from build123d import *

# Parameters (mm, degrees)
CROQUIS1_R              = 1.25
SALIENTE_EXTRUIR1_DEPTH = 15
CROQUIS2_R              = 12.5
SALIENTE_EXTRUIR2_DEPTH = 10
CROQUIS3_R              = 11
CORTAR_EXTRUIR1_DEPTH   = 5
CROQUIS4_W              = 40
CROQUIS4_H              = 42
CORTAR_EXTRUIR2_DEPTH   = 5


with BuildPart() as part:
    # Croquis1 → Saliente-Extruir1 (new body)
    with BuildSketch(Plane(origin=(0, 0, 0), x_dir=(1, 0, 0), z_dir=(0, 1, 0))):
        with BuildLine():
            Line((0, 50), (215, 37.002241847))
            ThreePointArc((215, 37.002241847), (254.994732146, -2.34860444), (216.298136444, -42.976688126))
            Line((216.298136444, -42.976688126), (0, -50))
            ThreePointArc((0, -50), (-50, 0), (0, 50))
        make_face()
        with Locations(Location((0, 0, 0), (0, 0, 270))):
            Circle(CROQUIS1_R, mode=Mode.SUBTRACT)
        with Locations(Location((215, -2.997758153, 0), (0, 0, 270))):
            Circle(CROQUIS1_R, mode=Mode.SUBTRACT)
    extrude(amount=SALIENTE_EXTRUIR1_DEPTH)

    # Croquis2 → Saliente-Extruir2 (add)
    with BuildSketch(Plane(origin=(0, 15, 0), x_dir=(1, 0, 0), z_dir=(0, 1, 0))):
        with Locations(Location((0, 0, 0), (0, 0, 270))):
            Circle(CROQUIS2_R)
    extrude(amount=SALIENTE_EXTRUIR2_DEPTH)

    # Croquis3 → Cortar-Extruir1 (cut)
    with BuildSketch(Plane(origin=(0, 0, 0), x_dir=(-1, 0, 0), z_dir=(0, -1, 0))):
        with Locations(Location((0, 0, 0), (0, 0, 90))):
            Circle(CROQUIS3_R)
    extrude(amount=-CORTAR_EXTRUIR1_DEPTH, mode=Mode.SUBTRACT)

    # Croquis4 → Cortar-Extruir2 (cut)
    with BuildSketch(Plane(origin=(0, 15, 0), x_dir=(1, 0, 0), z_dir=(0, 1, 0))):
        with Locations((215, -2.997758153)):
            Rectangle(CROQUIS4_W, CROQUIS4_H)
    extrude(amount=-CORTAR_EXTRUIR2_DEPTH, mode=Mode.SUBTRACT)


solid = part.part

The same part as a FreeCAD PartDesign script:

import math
import FreeCAD as App
import Part
import Sketcher

V = App.Vector

doc = App.newDocument("Part")
body = doc.addObject("PartDesign::Body", "Body")

# Sketch on XZ plane
sketch1 = body.newObject("Sketcher::SketchObject", "Sketch")
sketch1.AttachmentSupport = (doc.getObject("XZ_Plane"), [""])
sketch1.MapMode = "FlatFace"
sketch1.addGeometry(Part.LineSegment(V(215, -37.002242, 0), V(0, -50, 0)), False)
sketch1.addGeometry(Part.ArcOfCircle(Part.Circle(V(0, 0, 0), V(0, 0, 1), 50), math.radians(90), math.radians(270)), False)
sketch1.addGeometry(Part.LineSegment(V(0, 50, 0), V(216.298136, 42.976688, 0)), False)
sketch1.addGeometry(Part.ArcOfCircle(Part.Circle(V(215, 2.997758, 0), V(0, 0, 1), 40), math.radians(-90), math.radians(88.14023)), False)
sketch1.addGeometry(Part.Circle(V(215, 2.997758, 0), V(0, 0, 1), 1.25), False)
sketch1.addGeometry(Part.Circle(V(0, 0, 0), V(0, 0, 1), 1.25), False)
sketch1.addConstraint(Sketcher.Constraint("Coincident", 0, 2, 1, 2))
sketch1.addConstraint(Sketcher.Constraint("Coincident", 1, 1, 2, 1))
sketch1.addConstraint(Sketcher.Constraint("Tangent", 2, 2, 3, 2))
sketch1.addConstraint(Sketcher.Constraint("Coincident", 3, 1, 0, 1))
sketch1.addConstraint(Sketcher.Constraint("Coincident", 1, 3, -1, 1))
sketch1.addConstraint(Sketcher.Constraint("Coincident", 5, 3, -1, 1))
sketch1.addConstraint(Sketcher.Constraint("Coincident", 4, 3, 3, 3))
sketch1.addConstraint(Sketcher.Constraint("Equal", 4, 5))
sketch1.addConstraint(Sketcher.Constraint("PointOnObject", 0, 2, -2))
sketch1.addConstraint(Sketcher.Constraint("PointOnObject", 1, 1, -2))
sketch1.addConstraint(Sketcher.Constraint("Vertical", 4, 3, 3, 1))
sketch1.addConstraint(Sketcher.Constraint("Radius", 1, 50.0))
sketch1.addConstraint(Sketcher.Constraint("Radius", 3, 40.0))
sketch1.addConstraint(Sketcher.Constraint("Diameter", 4, 2.5))
sketch1.addConstraint(Sketcher.Constraint("DistanceX", -1, 1, 3, 3, 215.0))
sketch1.addConstraint(Sketcher.Constraint("Distance", 0, 215.392529))
pad1 = body.newObject("PartDesign::Pad", "Pad")
pad1.Profile = sketch1
pad1.Length = 15
pad1.Reversed = True

# Sketch on XZ plane
sketch2 = body.newObject("Sketcher::SketchObject", "Sketch001")
sketch2.AttachmentSupport = (doc.getObject("XZ_Plane"), [""])
sketch2.MapMode = "FlatFace"
sketch2.AttachmentOffset = App.Placement(V(0, 0, -15), App.Rotation())
sketch2.addGeometry(Part.Circle(V(0, 0, 0), V(0, 0, 1), 12.5), False)
sketch2.addConstraint(Sketcher.Constraint("Coincident", 0, 3, -1, 1))
sketch2.addConstraint(Sketcher.Constraint("Diameter", 0, 25.0))
pad2 = body.newObject("PartDesign::Pad", "Pad001")
pad2.Profile = sketch2
pad2.Length = 10
pad2.Reversed = True

# Sketch on XZ plane
sketch3 = body.newObject("Sketcher::SketchObject", "Sketch002")
sketch3.AttachmentSupport = (doc.getObject("XZ_Plane"), [""])
sketch3.MapMode = "FlatFace"
sketch3.addGeometry(Part.Circle(V(0, 0, 0), V(0, 0, 1), 11), False)
sketch3.addConstraint(Sketcher.Constraint("Coincident", 0, 3, -1, 1))
sketch3.addConstraint(Sketcher.Constraint("Diameter", 0, 22.0))
pocket1 = body.newObject("PartDesign::Pocket", "Pocket")
pocket1.Profile = sketch3
pocket1.Length = 5

# Sketch on XZ plane
sketch4 = body.newObject("Sketcher::SketchObject", "Sketch003")
sketch4.AttachmentSupport = (doc.getObject("XZ_Plane"), [""])
sketch4.MapMode = "FlatFace"
sketch4.AttachmentOffset = App.Placement(V(0, 0, -15), App.Rotation())
sketch4.addGeometry(Part.LineSegment(V(195, -18.002242, 0), V(195, 23.997758, 0)), False)
sketch4.addGeometry(Part.LineSegment(V(195, 23.997758, 0), V(235, 23.997758, 0)), False)
sketch4.addGeometry(Part.LineSegment(V(235, 23.997758, 0), V(235, -18.002242, 0)), False)
sketch4.addGeometry(Part.LineSegment(V(235, -18.002242, 0), V(195, -18.002242, 0)), False)
sketch4.addConstraint(Sketcher.Constraint("Coincident", 0, 2, 1, 1))
sketch4.addConstraint(Sketcher.Constraint("Coincident", 1, 2, 2, 1))
sketch4.addConstraint(Sketcher.Constraint("Coincident", 2, 2, 3, 1))
sketch4.addConstraint(Sketcher.Constraint("Coincident", 3, 2, 0, 1))
sketch4.addConstraint(Sketcher.Constraint("Vertical", 0))
sketch4.addConstraint(Sketcher.Constraint("Horizontal", 1))
sketch4.addConstraint(Sketcher.Constraint("Vertical", 2))
sketch4.addConstraint(Sketcher.Constraint("Horizontal", 3))
sketch4.addConstraint(Sketcher.Constraint("DistanceX", 1, 1, 1, 2, 40.0))
sketch4.addConstraint(Sketcher.Constraint("DistanceY", 0, 1, 0, 2, 42.0))
sketch4.addConstraint(Sketcher.Constraint("DistanceX", -1, 1, 0, 2, 195.0))
sketch4.addConstraint(Sketcher.Constraint("DistanceY", -1, 1, 0, 2, 23.997758))
pocket2 = body.newObject("PartDesign::Pocket", "Pocket001")
pocket2.Profile = sketch4
pocket2.Length = 5
pocket2.Reversed = True

doc.recompute()
